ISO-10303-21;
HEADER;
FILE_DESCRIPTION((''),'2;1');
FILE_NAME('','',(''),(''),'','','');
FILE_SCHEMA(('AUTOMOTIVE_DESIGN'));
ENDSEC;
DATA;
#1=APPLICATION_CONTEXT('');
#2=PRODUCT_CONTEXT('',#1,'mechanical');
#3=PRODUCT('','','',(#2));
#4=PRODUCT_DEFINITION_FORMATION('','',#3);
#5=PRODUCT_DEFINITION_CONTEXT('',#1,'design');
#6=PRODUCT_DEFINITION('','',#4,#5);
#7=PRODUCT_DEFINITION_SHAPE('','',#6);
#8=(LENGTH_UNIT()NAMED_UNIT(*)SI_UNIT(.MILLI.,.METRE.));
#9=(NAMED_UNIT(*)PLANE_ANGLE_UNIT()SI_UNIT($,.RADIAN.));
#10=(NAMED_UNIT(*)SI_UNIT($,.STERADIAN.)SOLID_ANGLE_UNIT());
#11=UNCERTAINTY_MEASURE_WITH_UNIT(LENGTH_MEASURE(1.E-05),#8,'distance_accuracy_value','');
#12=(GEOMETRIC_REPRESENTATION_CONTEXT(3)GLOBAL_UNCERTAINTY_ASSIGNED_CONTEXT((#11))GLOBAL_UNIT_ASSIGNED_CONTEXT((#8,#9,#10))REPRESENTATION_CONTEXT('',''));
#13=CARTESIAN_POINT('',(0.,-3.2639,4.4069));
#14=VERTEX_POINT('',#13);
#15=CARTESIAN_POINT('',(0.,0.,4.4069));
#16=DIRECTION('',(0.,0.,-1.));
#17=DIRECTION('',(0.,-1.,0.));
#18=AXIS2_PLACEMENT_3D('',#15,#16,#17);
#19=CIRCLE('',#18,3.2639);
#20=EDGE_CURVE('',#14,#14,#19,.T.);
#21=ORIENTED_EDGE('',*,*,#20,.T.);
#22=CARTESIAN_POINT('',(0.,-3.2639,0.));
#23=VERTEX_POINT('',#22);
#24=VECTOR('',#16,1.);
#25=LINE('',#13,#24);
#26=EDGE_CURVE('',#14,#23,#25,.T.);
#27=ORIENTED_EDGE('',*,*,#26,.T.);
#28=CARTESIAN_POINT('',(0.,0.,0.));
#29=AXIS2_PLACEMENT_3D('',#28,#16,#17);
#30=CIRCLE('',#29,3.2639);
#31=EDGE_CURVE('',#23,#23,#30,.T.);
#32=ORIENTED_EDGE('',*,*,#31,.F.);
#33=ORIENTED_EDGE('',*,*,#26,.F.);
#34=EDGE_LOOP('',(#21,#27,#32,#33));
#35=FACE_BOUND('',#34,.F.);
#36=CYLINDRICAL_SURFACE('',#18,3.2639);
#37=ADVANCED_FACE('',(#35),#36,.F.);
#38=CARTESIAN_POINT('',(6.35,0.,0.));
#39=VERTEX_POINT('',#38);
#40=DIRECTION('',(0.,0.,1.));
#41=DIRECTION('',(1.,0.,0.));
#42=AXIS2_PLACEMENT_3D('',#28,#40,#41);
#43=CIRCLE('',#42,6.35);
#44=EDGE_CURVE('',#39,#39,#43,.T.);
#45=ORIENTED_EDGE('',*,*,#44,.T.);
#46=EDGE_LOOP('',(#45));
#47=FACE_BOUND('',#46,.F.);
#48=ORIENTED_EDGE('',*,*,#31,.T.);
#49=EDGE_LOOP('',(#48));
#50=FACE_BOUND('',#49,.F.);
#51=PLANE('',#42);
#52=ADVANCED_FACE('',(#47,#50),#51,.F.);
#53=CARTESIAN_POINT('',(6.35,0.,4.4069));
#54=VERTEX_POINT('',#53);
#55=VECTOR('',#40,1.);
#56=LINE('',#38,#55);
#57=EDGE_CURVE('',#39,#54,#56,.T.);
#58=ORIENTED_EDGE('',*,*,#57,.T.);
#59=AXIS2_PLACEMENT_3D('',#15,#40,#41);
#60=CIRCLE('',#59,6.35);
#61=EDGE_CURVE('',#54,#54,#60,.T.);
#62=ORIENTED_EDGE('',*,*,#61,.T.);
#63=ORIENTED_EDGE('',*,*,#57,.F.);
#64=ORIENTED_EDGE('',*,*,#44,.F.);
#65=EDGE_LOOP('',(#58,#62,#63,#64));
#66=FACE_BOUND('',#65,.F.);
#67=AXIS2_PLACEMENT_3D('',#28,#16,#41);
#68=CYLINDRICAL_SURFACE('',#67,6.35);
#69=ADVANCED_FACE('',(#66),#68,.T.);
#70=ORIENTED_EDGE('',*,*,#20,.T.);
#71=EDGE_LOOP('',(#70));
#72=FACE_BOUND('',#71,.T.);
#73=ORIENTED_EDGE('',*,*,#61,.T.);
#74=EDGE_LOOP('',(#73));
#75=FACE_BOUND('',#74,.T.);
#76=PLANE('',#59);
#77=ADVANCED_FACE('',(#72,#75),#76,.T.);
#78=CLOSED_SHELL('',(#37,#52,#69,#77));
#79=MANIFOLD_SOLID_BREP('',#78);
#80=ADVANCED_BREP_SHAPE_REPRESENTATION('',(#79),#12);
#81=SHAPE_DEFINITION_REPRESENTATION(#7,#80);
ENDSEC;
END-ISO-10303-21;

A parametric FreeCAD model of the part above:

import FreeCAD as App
import Part
import Sketcher

V = App.Vector
Q = App.Units.Quantity

doc = App.newDocument("Part")
params = doc.addObject("Spreadsheet::Sheet", "Params")
for row, (alias, value) in enumerate([
    ("sketch1_diameter", "0.5 in"),
    ("pad1_length", "0.1735 in"),
    ("sketch2_diameter", "0.257 in"),
    ("hole_diameter", "0.257 in"),
], start=1):
    params.set(f"A{row}", alias)
    params.set(f"B{row}", "=" + value)
    params.setAlias(f"B{row}", alias)

body = doc.addObject("PartDesign::Body", "Body")

sketch1 = body.newObject("Sketcher::SketchObject", "Sketch")
sketch1.AttachmentSupport = (doc.getObject("XY_Plane"), [""])
sketch1.MapMode = "FlatFace"
sketch1.addGeometry(Part.Circle(V(0, 0, 0), V(0, 0, 1), 6), False)
sketch1.addConstraint([
    Sketcher.Constraint("Coincident", 0, 3, -1, 1),
    Sketcher.Constraint("Diameter", 0, Q("0.5 in")),
])
sketch1.setExpression("Constraints[1]", "Params.sketch1_diameter")
pad1 = body.newObject("PartDesign::Pad", "Pad")
pad1.Profile = sketch1
pad1.setExpression("Length", "Params.pad1_length")

sketch2 = body.newObject("Sketcher::SketchObject", "Sketch001")
sketch2.AttachmentSupport = (doc.getObject("XY_Plane"), [""])
sketch2.MapMode = "FlatFace"
sketch2.AttachmentOffset = App.Placement(V(0, 0, 0.1735 * 25.4), App.Rotation())
sketch2.addGeometry(Part.Circle(V(0, 0, 0), V(0, 0, 1), 3.3), False)
sketch2.addConstraint([
    Sketcher.Constraint("Coincident", 0, 3, -1, 1),
    Sketcher.Constraint("Diameter", 0, Q("0.257 in")),
])
sketch2.setExpression("Constraints[1]", "Params.sketch2_diameter")
doc.recompute()
hole = body.newObject("PartDesign::Hole", "Hole")
hole.Profile = sketch2
hole.ThreadType = "None"
hole.setExpression("Diameter", "Params.hole_diameter")
hole.DepthType = "ThroughAll"

doc.recompute()
